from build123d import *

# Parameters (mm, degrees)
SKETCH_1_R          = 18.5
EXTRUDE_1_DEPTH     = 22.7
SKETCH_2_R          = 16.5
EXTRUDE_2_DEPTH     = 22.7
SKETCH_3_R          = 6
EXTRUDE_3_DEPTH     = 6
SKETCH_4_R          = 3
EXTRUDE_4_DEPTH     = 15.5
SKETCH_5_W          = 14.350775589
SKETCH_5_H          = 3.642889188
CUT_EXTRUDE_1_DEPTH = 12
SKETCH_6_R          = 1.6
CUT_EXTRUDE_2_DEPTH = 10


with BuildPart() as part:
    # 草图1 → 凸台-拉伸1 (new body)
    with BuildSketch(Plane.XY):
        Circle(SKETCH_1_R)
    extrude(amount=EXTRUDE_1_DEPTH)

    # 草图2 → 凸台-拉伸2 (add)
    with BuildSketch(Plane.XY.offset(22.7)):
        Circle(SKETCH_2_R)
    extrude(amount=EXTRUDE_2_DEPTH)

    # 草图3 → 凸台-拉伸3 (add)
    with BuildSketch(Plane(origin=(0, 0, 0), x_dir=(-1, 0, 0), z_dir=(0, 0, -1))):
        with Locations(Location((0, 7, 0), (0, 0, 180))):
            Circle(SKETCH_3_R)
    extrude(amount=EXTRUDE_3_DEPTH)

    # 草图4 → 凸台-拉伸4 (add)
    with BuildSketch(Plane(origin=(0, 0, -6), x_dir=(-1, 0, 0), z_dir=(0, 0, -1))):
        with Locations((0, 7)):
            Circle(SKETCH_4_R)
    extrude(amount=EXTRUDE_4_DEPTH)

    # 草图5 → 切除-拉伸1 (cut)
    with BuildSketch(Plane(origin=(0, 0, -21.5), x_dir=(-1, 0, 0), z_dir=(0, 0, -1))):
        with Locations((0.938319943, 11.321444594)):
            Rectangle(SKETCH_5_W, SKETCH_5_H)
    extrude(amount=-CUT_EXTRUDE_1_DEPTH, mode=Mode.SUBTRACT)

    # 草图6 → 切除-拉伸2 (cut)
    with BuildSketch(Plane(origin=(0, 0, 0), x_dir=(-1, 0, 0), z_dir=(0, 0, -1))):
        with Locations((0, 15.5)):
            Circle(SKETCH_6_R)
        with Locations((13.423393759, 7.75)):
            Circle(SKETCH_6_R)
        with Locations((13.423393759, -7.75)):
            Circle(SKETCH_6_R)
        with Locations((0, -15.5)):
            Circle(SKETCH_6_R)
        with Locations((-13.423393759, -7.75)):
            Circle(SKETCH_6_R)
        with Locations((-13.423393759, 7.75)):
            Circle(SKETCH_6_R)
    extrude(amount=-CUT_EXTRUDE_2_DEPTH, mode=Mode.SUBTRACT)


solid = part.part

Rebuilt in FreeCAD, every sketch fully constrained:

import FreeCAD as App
import Part
import Sketcher

doc = App.newDocument("Part")
body = doc.addObject("PartDesign::Body", "Body")

# Sketch on XY plane
sketch1 = body.newObject("Sketcher::SketchObject", "Sketch")
sketch1.AttachmentSupport = (doc.getObject("XY_Plane"), [""])
sketch1.MapMode = "FlatFace"
sketch1.addGeometry(Part.Circle(App.Vector(0, 0, 0), App.Vector(0, 0, 1), 18), False)
sketch1.addConstraint(Sketcher.Constraint("Coincident", 0, 3, -1, 1))
sketch1.addConstraint(Sketcher.Constraint("Diameter", 0, 37.0))
pad1 = body.newObject("PartDesign::Pad", "Pad")
pad1.Profile = sketch1
pad1.Length = 22.7

# Sketch on XY plane
sketch2 = body.newObject("Sketcher::SketchObject", "Sketch001")
sketch2.AttachmentSupport = (doc.getObject("XY_Plane"), [""])
sketch2.MapMode = "FlatFace"
sketch2.AttachmentOffset = App.Placement(App.Vector(0, 0, 22.7), App.Rotation())
sketch2.addGeometry(Part.Circle(App.Vector(0, 0, 0), App.Vector(0, 0, 1), 16), False)
sketch2.addConstraint(Sketcher.Constraint("Coincident", 0, 3, -1, 1))
sketch2.addConstraint(Sketcher.Constraint("Diameter", 0, 33.0))
pad2 = body.newObject("PartDesign::Pad", "Pad001")
pad2.Profile = sketch2
pad2.Length = 22.7

# Sketch on XY plane
sketch3 = body.newObject("Sketcher::SketchObject", "Sketch002")
sketch3.AttachmentSupport = (doc.getObject("XY_Plane"), [""])
sketch3.MapMode = "FlatFace"
sketch3.addGeometry(Part.Circle(App.Vector(0, 7, 0), App.Vector(0, 0, 1), 6), False)
sketch3.addConstraint(Sketcher.Constraint("PointOnObject", 0, 3, -2))
sketch3.addConstraint(Sketcher.Constraint("Diameter", 0, 12.0))
sketch3.addConstraint(Sketcher.Constraint("DistanceY", -1, 1, 0, 3, 7.0))
pad3 = body.newObject("PartDesign::Pad", "Pad002")
pad3.Profile = sketch3
pad3.Length = 6
pad3.Reversed = True

# Sketch on XY plane
sketch4 = body.newObject("Sketcher::SketchObject", "Sketch003")
sketch4.AttachmentSupport = (doc.getObject("XY_Plane"), [""])
sketch4.MapMode = "FlatFace"
sketch4.AttachmentOffset = App.Placement(App.Vector(0, 0, -6), App.Rotation())
sketch4.addGeometry(Part.Circle(App.Vector(0, 7, 0), App.Vector(0, 0, 1), 3), False)
sketch4.addConstraint(Sketcher.Constraint("PointOnObject", 0, 3, -2))
sketch4.addConstraint(Sketcher.Constraint("Diameter", 0, 6.0))
sketch4.addConstraint(Sketcher.Constraint("DistanceY", -1, 1, 0, 3, 7.0))
pad4 = body.newObject("PartDesign::Pad", "Pad003")
pad4.Profile = sketch4
pad4.Length = 15.5
pad4.Reversed = True

# Sketch on XY plane
sketch5 = body.newObject("Sketcher::SketchObject", "Sketch004")
sketch5.AttachmentSupport = (doc.getObject("XY_Plane"), [""])
sketch5.MapMode = "FlatFace"
sketch5.AttachmentOffset = App.Placement(App.Vector(0, 0, -21.5), App.Rotation())
sketch5.addGeometry(Part.LineSegment(App.Vector(6.2, 13.1, 0), App.Vector(6.2, 9.5, 0)), False)
sketch5.addGeometry(Part.LineSegment(App.Vector(6.2, 9.5, 0), App.Vector(-8.1, 9.5, 0)), False)
sketch5.addGeometry(Part.LineSegment(App.Vector(-8.1, 9.5, 0), App.Vector(-8.1, 13.1, 0)), False)
sketch5.addGeometry(Part.LineSegment(App.Vector(-8.1, 13.1, 0), App.Vector(6.2, 13.1, 0)), False)
sketch5.addConstraint(Sketcher.Constraint("Coincident", 0, 2, 1, 1))
sketch5.addConstraint(Sketcher.Constraint("Coincident", 1, 2, 2, 1))
sketch5.addConstraint(Sketcher.Constraint("Coincident", 2, 2, 3, 1))
sketch5.addConstraint(Sketcher.Constraint("Coincident", 3, 2, 0, 1))
sketch5.addConstraint(Sketcher.Constraint("Vertical", 0))
sketch5.addConstraint(Sketcher.Constraint("Horizontal", 1))
sketch5.addConstraint(Sketcher.Constraint("Vertical", 2))
sketch5.addConstraint(Sketcher.Constraint("Horizontal", 3))
sketch5.addConstraint(Sketcher.Constraint("DistanceY", -1, 1, 0, 2, 9.5))
sketch5.addConstraint(Sketcher.Constraint("DistanceY", 0, 2, 0, 1, 3.642889))
sketch5.addConstraint(Sketcher.Constraint("DistanceX", 1, 2, 1, 1, 14.350776))
sketch5.addConstraint(Sketcher.Constraint("DistanceX", -1, 1, 0, 2, 6.237068))
pocket1 = body.newObject("PartDesign::Pocket", "Pocket")
pocket1.Profile = sketch5
pocket1.Length = 12
pocket1.Reversed = True

# Sketch on XY plane
sketch6 = body.newObject("Sketcher::SketchObject", "Sketch005")
sketch6.AttachmentSupport = (doc.getObject("XY_Plane"), [""])
sketch6.MapMode = "FlatFace"
sketch6.addGeometry(Part.Circle(App.Vector(0, 15.5, 0), App.Vector(0, 0, 1), 1.6), False)
sketch6.addGeometry(Part.Circle(App.Vector(-13.4, 7.8, 0), App.Vector(0, 0, 1), 1.6), False)
sketch6.addGeometry(Part.Circle(App.Vector(-13.4, -7.8, 0), App.Vector(0, 0, 1), 1.6), False)
sketch6.addGeometry(Part.Circle(App.Vector(0, -15.5, 0), App.Vector(0, 0, 1), 1.6), False)
sketch6.addGeometry(Part.Circle(App.Vector(13.4, -7.8, 0), App.Vector(0, 0, 1), 1.6), False)
sketch6.addGeometry(Part.Circle(App.Vector(13.4, 7.8, 0), App.Vector(0, 0, 1), 1.6), False)
sketch6.addConstraint(Sketcher.Constraint("Equal", 0, 1))
sketch6.addConstraint(Sketcher.Constraint("Equal", 1, 2))
sketch6.addConstraint(Sketcher.Constraint("Equal", 2, 3))
sketch6.addConstraint(Sketcher.Constraint("Equal", 3, 4))
sketch6.addConstraint(Sketcher.Constraint("Equal", 4, 5))
sketch6.addConstraint(Sketcher.Constraint("Symmetric", 0, 3, 3, 3, -1, 1))
sketch6.addConstraint(Sketcher.Constraint("Symmetric", 1, 3, 4, 3, -1, 1))
sketch6.addConstraint(Sketcher.Constraint("Symmetric", 2, 3, 5, 3, -1, 1))
sketch6.addConstraint(Sketcher.Constraint("Symmetric", 2, 3, 4, 3, -2))
sketch6.addConstraint(Sketcher.Constraint("PointOnObject", 0, 3, -2))
sketch6.addConstraint(Sketcher.Constraint("Diameter", 0, 3.2))
sketch6.addConstraint(Sketcher.Constraint("DistanceY", 3, 3, 0, 3, 31.0))
sketch6.addConstraint(Sketcher.Constraint("DistanceY", 2, 3, 1, 3, 15.5))
sketch6.addConstraint(Sketcher.Constraint("DistanceX", 1, 3, -1, 1, 13.423394))
pocket2 = body.newObject("PartDesign::Pocket", "Pocket001")
pocket2.Profile = sketch6
pocket2.Length = 10
pocket2.Reversed = True

doc.recompute()
